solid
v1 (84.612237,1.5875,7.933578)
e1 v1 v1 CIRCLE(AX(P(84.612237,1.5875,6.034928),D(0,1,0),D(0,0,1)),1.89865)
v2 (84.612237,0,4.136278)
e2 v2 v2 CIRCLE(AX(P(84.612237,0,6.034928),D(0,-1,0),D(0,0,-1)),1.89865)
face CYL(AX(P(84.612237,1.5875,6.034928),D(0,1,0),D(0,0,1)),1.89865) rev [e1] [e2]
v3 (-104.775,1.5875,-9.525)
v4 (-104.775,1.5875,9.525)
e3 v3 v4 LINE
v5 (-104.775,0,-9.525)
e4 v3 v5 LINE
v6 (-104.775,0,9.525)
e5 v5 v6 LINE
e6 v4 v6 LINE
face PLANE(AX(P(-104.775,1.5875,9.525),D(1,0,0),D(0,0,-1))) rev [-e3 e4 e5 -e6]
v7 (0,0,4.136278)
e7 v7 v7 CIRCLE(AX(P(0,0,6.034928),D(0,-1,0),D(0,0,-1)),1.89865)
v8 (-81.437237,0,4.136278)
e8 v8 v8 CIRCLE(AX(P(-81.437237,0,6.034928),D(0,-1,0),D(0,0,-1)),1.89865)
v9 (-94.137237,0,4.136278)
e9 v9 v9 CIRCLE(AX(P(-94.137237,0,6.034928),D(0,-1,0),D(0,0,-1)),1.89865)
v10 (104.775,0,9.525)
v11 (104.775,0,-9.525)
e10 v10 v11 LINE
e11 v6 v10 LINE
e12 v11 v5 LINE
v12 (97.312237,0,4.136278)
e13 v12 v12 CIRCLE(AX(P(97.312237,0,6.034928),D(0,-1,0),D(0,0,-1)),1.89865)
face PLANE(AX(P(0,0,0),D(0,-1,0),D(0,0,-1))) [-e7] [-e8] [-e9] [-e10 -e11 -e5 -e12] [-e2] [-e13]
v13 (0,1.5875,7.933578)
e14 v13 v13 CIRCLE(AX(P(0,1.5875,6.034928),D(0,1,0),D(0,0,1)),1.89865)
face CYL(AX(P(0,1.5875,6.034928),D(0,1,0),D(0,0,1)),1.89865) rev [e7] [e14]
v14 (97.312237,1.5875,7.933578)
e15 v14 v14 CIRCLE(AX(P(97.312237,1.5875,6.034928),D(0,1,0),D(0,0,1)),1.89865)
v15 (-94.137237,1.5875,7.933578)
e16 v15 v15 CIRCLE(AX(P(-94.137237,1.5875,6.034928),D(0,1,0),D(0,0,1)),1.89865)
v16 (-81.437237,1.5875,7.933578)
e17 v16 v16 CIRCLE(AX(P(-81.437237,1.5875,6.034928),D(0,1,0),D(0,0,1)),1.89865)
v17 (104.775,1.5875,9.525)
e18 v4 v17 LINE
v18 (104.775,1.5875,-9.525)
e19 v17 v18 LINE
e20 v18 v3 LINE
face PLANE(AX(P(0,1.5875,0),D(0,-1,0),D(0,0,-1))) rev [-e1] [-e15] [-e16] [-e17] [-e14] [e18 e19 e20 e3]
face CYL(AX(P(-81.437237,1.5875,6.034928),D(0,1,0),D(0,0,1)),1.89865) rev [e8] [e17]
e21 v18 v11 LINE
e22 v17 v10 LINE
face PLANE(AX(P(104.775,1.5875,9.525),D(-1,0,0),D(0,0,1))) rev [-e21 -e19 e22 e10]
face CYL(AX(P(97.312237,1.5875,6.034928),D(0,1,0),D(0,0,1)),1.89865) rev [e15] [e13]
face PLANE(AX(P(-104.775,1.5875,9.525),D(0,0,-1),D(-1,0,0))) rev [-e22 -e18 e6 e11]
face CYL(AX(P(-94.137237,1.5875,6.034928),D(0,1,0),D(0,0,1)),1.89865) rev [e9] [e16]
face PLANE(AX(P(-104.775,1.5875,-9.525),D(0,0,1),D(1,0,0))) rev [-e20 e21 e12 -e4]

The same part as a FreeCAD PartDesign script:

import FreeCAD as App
import Part
import Sketcher

V = App.Vector
Q = App.Units.Quantity


def add_polygon(sketch, points):
    """Adds a closed chain of lines whose ends are joined by coincident constraints."""
    first, n = sketch.GeometryCount, len(points)
    for a, b in zip(points, points[1:] + points[:1]):
        sketch.addGeometry(Part.LineSegment(App.Vector(*a, 0), App.Vector(*b, 0)), False)
    for i in range(n):
        sketch.addConstraint(Sketcher.Constraint("Coincident", first + i, 2, first + (i + 1) % n, 1))

doc = App.newDocument("Part")
body = doc.addObject("PartDesign::Body", "Body")

# Sketch on XZ plane
sketch1 = body.newObject("Sketcher::SketchObject", "Sketch")
sketch1.AttachmentSupport = (doc.getObject("XZ_Plane"), [""])
sketch1.MapMode = "FlatFace"
add_polygon(sketch1, [(-105, -10), (-105, 10), (105, 10), (105, -10)])  # lines 0-3
sketch1.addConstraint([
    Sketcher.Constraint("Vertical", 0),
    Sketcher.Constraint("Horizontal", 1),
    Sketcher.Constraint("Vertical", 2),
    Sketcher.Constraint("Horizontal", 3),
    Sketcher.Constraint("Symmetric", 0, 2, 2, 2, -1, 1),
    Sketcher.Constraint("DistanceX", 1, 1, 1, 2, Q("8.25 in")),
    Sketcher.Constraint("DistanceY", 0, 1, 0, 2, Q("0.75 in")),
])
pad1 = body.newObject("PartDesign::Pad", "Pad")
pad1.Profile = sketch1
pad1.Length = Q("0.0625 in")
pad1.Reversed = True

# Sketch on XZ plane
sketch2 = body.newObject("Sketcher::SketchObject", "Sketch001")
sketch2.AttachmentSupport = (doc.getObject("XZ_Plane"), [""])
sketch2.MapMode = "FlatFace"
sketch2.AttachmentOffset = App.Placement(V(0, 0, -0.0625 * 25.4), App.Rotation())
sketch2.addGeometry([
    Part.Circle(V(-94.1, 6, 0), V(0, 0, 1), 1.9),  # 0
    Part.Circle(V(0, 6, 0), V(0, 0, 1), 1.9),  # 1
    Part.Circle(V(97.3, 6, 0), V(0, 0, 1), 1.9),  # 2
    Part.Circle(V(-81.4, 6, 0), V(0, 0, 1), 1.9),  # 3
    Part.Circle(V(84.6, 6, 0), V(0, 0, 1), 1.9),  # 4
], False)
sketch2.addConstraint([
    Sketcher.Constraint("Equal", 0, 1),
    Sketcher.Constraint("Equal", 1, 2),
    Sketcher.Constraint("Equal", 2, 3),
    Sketcher.Constraint("Equal", 3, 4),
    Sketcher.Constraint("PointOnObject", 1, 3, -2),
    Sketcher.Constraint("Horizontal", 0, 3, 1, 3),
    Sketcher.Constraint("Horizontal", 1, 3, 2, 3),
    Sketcher.Constraint("Horizontal", 2, 3, 3, 3),
    Sketcher.Constraint("Horizontal", 3, 3, 4, 3),
    Sketcher.Constraint("Diameter", 0, Q("0.1495 in")),
    Sketcher.Constraint("DistanceX", 0, 3, 3, 3, Q("0.5 in")),
    Sketcher.Constraint("DistanceX", 4, 3, 2, 3, Q("0.5 in")),
    Sketcher.Constraint("DistanceY", -1, 1, 0, 3, 6.034928),
    Sketcher.Constraint("DistanceX", 0, 3, -1, 1, 94.137237),
    Sketcher.Constraint("DistanceX", -1, 1, 2, 3, 97.312237),
])
doc.recompute()
hole = body.newObject("PartDesign::Hole", "Hole")
hole.Profile = sketch2
hole.ThreadType = "None"
hole.Diameter = Q("0.1495 in")
hole.DepthType = "ThroughAll"
hole.Reversed = True

doc.recompute()
